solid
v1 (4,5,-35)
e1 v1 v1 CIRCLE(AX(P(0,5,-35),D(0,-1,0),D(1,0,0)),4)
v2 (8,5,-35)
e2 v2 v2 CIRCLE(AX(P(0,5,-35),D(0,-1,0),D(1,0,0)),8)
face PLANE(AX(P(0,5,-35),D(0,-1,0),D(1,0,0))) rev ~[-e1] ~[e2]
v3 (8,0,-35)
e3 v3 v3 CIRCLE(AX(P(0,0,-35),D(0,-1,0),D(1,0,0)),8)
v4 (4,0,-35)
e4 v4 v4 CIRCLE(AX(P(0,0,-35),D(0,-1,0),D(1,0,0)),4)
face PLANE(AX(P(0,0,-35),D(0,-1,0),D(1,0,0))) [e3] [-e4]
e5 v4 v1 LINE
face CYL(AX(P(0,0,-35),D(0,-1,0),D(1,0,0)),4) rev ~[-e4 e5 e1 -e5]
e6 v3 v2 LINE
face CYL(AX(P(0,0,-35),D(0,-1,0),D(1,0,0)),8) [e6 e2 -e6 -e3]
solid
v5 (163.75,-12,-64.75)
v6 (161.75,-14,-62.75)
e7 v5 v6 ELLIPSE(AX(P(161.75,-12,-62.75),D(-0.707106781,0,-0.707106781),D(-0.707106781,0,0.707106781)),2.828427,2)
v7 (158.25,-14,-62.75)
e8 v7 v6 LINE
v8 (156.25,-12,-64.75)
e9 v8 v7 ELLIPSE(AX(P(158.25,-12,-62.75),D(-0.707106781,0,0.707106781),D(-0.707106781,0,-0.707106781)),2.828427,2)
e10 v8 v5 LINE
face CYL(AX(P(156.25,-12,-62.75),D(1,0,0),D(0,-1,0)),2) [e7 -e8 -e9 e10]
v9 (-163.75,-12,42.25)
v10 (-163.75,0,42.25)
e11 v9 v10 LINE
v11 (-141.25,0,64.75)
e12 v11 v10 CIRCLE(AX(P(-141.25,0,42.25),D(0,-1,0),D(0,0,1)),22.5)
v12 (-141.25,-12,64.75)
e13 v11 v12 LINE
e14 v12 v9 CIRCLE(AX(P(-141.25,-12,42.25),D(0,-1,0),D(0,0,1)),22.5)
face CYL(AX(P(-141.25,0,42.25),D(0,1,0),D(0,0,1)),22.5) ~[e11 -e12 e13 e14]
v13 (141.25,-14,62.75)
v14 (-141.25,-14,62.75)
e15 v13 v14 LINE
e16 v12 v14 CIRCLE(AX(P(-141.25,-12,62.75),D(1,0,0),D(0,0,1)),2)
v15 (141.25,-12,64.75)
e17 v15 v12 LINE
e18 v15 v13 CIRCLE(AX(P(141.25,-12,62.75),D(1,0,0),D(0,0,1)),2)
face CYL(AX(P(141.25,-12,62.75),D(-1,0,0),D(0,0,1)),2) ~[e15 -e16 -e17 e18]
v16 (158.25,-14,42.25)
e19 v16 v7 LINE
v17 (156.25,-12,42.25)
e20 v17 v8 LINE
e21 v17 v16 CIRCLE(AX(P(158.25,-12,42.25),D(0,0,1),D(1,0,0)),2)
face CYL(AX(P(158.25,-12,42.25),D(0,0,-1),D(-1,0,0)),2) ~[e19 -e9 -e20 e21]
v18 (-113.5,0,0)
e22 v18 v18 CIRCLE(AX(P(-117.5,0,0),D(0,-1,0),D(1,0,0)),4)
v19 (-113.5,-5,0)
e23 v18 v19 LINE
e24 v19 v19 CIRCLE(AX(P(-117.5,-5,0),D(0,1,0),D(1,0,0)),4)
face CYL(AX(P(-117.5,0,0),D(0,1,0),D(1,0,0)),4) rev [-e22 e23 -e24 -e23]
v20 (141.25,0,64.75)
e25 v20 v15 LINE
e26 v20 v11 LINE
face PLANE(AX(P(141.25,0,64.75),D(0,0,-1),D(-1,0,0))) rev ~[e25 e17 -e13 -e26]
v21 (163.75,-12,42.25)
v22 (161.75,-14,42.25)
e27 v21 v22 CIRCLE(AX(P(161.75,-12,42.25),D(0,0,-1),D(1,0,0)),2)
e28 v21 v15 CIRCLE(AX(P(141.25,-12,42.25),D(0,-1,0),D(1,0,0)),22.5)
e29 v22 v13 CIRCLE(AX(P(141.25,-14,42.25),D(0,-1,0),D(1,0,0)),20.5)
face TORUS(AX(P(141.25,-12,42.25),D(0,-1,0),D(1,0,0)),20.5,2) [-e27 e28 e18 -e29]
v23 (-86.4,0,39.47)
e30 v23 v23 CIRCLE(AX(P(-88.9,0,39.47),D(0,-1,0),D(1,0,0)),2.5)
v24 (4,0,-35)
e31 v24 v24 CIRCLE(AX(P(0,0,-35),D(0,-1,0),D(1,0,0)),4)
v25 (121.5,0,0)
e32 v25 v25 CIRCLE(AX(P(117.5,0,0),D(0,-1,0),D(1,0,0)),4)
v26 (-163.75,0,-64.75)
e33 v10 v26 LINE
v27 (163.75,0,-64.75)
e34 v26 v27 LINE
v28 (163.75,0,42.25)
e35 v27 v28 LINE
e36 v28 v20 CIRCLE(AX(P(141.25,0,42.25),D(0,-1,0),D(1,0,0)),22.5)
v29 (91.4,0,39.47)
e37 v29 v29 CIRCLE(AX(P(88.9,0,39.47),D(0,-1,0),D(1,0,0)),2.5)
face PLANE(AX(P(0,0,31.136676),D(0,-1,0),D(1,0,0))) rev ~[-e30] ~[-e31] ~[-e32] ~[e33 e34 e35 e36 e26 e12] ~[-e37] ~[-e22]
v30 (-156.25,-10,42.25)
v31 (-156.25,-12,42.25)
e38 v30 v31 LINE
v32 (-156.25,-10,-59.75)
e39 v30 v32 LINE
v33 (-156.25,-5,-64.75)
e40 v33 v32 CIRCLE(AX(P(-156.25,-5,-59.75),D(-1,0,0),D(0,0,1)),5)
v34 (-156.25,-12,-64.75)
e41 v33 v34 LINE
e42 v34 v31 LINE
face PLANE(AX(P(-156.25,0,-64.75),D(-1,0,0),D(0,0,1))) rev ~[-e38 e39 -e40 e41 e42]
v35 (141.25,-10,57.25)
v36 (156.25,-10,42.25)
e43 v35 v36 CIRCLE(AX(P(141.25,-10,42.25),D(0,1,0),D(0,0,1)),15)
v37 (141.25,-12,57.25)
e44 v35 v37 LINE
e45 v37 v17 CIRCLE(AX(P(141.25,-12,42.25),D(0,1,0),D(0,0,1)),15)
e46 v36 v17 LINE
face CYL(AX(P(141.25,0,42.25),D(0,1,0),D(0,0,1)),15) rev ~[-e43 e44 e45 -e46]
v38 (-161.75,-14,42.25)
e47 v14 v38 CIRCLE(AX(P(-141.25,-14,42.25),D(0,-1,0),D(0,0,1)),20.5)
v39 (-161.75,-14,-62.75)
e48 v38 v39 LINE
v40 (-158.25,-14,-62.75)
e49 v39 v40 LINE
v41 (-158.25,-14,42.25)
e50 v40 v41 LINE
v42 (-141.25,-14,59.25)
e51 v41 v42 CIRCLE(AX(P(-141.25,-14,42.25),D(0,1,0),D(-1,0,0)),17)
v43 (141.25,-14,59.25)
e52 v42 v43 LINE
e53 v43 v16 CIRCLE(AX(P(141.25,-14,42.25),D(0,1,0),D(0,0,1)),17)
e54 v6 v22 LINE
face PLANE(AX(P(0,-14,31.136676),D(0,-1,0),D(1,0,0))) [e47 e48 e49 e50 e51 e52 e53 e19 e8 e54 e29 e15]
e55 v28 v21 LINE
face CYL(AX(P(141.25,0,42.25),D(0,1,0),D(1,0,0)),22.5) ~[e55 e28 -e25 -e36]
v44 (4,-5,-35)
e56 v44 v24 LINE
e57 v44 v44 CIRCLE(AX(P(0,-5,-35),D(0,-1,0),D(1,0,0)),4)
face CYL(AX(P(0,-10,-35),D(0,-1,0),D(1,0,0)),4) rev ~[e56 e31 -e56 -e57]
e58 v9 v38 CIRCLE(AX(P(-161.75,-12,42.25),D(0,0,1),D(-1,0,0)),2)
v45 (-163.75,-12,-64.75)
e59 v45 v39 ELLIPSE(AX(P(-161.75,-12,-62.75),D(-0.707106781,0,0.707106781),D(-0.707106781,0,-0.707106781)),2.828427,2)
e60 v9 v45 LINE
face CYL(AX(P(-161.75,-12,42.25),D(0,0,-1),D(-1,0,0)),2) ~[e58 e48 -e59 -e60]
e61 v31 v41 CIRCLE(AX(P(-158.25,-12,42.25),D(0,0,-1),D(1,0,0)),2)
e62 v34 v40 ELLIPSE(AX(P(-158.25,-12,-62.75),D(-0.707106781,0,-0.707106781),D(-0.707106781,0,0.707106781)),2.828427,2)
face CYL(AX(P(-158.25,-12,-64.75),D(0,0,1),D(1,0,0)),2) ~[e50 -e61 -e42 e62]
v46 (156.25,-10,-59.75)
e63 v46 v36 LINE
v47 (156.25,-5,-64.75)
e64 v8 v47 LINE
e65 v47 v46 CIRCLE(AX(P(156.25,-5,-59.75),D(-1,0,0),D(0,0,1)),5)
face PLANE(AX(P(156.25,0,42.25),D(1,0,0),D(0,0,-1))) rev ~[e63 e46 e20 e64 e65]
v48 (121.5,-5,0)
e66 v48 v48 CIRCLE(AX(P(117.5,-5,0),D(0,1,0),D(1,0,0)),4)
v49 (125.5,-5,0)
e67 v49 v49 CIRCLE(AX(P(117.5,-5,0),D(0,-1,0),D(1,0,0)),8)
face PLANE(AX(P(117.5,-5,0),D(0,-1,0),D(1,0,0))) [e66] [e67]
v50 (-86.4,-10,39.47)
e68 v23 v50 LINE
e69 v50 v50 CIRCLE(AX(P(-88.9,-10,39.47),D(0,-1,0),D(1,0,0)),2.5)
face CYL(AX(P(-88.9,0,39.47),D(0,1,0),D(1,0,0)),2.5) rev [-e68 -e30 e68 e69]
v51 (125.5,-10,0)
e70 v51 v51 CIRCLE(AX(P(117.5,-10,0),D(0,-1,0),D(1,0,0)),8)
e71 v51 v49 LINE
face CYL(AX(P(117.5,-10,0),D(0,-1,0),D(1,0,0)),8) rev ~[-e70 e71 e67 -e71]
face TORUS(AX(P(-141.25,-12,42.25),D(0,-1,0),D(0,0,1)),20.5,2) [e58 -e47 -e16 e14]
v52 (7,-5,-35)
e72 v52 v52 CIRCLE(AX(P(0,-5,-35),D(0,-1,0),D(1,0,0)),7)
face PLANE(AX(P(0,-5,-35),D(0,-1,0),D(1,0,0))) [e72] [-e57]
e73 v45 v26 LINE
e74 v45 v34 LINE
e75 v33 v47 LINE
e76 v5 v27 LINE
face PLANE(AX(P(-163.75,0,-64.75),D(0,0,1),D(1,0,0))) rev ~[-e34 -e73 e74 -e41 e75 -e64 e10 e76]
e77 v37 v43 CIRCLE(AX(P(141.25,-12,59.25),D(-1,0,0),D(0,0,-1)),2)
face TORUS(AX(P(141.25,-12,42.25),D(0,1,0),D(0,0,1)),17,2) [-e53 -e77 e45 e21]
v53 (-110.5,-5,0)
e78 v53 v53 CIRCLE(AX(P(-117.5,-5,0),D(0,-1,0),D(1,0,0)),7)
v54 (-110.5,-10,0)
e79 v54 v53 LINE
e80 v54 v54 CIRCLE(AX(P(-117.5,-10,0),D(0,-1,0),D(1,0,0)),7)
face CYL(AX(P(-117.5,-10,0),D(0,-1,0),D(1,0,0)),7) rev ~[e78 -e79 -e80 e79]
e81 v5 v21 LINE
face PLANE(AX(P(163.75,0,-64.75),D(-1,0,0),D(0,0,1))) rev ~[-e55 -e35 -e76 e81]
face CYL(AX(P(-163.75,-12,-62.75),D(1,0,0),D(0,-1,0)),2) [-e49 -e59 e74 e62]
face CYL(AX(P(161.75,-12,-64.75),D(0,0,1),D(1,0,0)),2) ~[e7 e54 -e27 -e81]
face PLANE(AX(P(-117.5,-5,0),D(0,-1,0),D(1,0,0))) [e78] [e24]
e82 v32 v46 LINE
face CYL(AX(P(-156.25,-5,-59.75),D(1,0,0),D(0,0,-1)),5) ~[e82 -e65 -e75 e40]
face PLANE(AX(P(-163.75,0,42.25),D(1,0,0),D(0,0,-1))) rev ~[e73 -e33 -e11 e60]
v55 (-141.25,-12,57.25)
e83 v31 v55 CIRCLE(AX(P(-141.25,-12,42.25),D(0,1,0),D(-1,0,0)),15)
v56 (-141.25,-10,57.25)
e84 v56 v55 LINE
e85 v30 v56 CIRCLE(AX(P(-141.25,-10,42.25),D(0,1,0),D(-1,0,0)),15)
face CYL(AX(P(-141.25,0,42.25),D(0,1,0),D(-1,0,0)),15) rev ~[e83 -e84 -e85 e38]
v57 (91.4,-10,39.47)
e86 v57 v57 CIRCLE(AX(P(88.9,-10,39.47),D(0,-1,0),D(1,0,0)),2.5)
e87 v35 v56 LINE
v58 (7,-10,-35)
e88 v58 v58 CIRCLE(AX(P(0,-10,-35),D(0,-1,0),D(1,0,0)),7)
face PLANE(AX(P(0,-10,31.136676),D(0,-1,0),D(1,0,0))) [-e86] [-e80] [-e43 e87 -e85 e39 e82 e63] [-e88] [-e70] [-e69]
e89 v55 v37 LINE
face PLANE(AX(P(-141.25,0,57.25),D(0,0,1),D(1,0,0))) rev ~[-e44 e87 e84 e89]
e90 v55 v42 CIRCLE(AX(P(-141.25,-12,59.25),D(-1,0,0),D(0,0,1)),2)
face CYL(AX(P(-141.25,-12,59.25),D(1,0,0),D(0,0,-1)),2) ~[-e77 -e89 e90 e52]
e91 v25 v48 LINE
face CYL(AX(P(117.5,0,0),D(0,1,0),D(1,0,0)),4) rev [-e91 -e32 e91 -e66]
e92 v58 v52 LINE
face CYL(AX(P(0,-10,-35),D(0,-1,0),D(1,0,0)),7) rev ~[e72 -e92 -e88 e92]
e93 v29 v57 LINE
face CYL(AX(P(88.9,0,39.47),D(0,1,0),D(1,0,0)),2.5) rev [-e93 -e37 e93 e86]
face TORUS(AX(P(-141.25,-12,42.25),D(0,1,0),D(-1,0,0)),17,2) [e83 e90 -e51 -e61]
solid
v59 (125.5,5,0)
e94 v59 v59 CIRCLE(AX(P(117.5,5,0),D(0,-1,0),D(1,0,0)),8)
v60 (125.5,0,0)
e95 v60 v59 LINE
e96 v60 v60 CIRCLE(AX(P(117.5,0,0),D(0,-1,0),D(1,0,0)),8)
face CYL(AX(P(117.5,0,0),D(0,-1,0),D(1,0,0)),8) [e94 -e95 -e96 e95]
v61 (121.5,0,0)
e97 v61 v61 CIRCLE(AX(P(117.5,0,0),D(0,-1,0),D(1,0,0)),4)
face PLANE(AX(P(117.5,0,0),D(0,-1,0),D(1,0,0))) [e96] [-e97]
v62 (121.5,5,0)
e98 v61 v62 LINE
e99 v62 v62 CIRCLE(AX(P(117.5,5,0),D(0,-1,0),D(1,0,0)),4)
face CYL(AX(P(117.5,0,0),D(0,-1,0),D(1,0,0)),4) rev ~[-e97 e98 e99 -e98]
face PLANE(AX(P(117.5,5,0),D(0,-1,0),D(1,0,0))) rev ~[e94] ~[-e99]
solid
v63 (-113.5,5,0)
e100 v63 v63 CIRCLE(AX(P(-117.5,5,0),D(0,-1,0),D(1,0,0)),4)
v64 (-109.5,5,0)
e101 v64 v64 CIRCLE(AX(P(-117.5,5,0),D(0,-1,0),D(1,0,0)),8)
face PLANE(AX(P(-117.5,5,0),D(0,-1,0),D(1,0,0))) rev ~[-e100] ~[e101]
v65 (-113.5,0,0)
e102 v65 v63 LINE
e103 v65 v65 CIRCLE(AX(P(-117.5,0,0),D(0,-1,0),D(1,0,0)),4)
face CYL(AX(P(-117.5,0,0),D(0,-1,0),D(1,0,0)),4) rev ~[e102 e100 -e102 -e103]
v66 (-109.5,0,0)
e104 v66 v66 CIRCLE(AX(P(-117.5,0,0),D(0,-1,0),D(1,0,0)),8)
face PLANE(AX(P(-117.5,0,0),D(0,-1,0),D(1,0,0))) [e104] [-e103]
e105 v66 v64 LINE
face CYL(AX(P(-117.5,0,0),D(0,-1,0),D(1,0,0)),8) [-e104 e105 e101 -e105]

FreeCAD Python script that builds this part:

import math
import FreeCAD as App
import Part
import Sketcher
from FreeCAD import Vector
Q = App.Units.Quantity


def edges_at(feature, points):
    """Names of the edges that pass closest to the given points."""
    edges = feature.Shape.Edges
    near = lambda p: min(range(len(edges)), key=lambda i: edges[i].distToShape(Part.Vertex(*p))[0])
    return sorted({f"Edge{near(p) + 1}" for p in points})

doc = App.newDocument("Part")
params = doc.addObject("Spreadsheet::Sheet", "Params")
for row, (alias, value) in enumerate([
    ("sketch1_diameter", "8 mm"),
    ("sketch1_diameter2", "5 mm"),
    ("sketch1_radius", "22.5 mm"),
    ("sketch1_height", "107 mm"),
    ("sketch1_width", "282.5 mm"),
    ("pad1_length", "10 mm"),
    ("sketch2_radius", "15 mm"),
    ("sketch2_radius2", "22.5 mm"),
    ("sketch2_height", "107 mm"),
    ("sketch2_width", "282.5 mm"),
    ("pad2_length", "14 mm"),
    ("fillet_radius", "2 mm"),
    ("fillet2_radius", "5 mm"),
    ("sketch3_diameter", "14 mm"),
    ("sketch3_diameter2", "16 mm"),
    ("pocket1_length", "5 mm"),
    ("sketch4_diameter", "8 mm"),
    ("pocket2_length", "25 mm"),
    ("sketch5_diameter", "14 mm"),
    ("sketch5_diameter2", "8 mm"),
    ("pocket3_length", "5 mm"),
    ("sketch6_diameter", "16 mm"),
    ("sketch6_diameter2", "8 mm"),
    ("pad3_length", "5 mm"),
    ("sketch7_diameter", "16 mm"),
    ("sketch7_diameter2", "8 mm"),
    ("pad4_length", "5 mm"),
    ("sketch8_diameter", "16 mm"),
    ("sketch8_diameter2", "8 mm"),
    ("pad5_length", "5 mm"),
], start=1):
    params.set(f"A{row}", alias)
    params.set(f"B{row}", "=" + value)
    params.setAlias(f"B{row}", alias)

body = doc.addObject("PartDesign::Body", "Body")

sketch1 = body.newObject("Sketcher::SketchObject", "Sketch")
sketch1.AttachmentSupport = (doc.getObject("XZ_Plane"), [""])
sketch1.MapMode = "FlatFace"
sketch1.addGeometry([
    Part.LineSegment(Vector(163.8, -64.8, 0), Vector(163.8, 42.2, 0)),
    Part.ArcOfCircle(Part.Circle(Vector(141.2, 42.2, 0), Vector(0, 0, 1), 22.5), math.radians(0), math.radians(90)),
    Part.LineSegment(Vector(141.2, 64.8, 0), Vector(-141.2, 64.8, 0)),
    Part.ArcOfCircle(Part.Circle(Vector(-141.2, 42.2, 0), Vector(0, 0, 1), 22.5), math.radians(90), math.radians(180)),
    Part.LineSegment(Vector(-163.8, 42.2, 0), Vector(-163.8, -64.8, 0)),
    Part.LineSegment(Vector(-163.8, -64.8, 0), Vector(163.8, -64.8, 0)),
    Part.Circle(Vector(-117.5, 0, 0), Vector(0, 0, 1), 4),
    Part.Circle(Vector(117.5, 0, 0), Vector(0, 0, 1), 4),
    Part.Circle(Vector(-88.9, 39.5, 0), Vector(0, 0, 1), 2.5),
    Part.Circle(Vector(88.9, 39.5, 0), Vector(0, 0, 1), 2.5),
], False)
sketch1.addConstraint([
    Sketcher.Constraint("Tangent", 0, 2, 1, 1),
    Sketcher.Constraint("Tangent", 1, 2, 2, 1),
    Sketcher.Constraint("Tangent", 2, 2, 3, 1),
    Sketcher.Constraint("Tangent", 3, 2, 4, 1),
    Sketcher.Constraint("Coincident", 4, 2, 5, 1),
    Sketcher.Constraint("Coincident", 5, 2, 0, 1),
    Sketcher.Constraint("Vertical", 0),
    Sketcher.Constraint("Horizontal", 2),
    Sketcher.Constraint("Vertical", 4),
    Sketcher.Constraint("Horizontal", 5),
    Sketcher.Constraint("Equal", 1, 3),
    Sketcher.Constraint("Equal", 6, 7),
    Sketcher.Constraint("Equal", 8, 9),
    Sketcher.Constraint("Symmetric", 6, 3, 7, 3, -1, 1),
    Sketcher.Constraint("Symmetric", 8, 3, 9, 3, -2),
    Sketcher.Constraint("PointOnObject", 6, 3, -1),
    Sketcher.Constraint("Diameter", 6, Q("8 mm")),
    Sketcher.Constraint("Diameter", 8, Q("5 mm")),
    Sketcher.Constraint("Radius", 1, Q("22.5 mm")),
    Sketcher.Constraint("DistanceY", 0, 1, 0, 2, Q("107 mm")),
    Sketcher.Constraint("DistanceX", 2, 2, 2, 1, Q("282.5 mm")),
    Sketcher.Constraint("DistanceX", 6, 3, 7, 3, Q("235 mm")),
    Sketcher.Constraint("DistanceX", 8, 3, -1, 1, Q("88.9 mm")),
    Sketcher.Constraint("DistanceX", -1, 1, 1, 3, Q("141.25 mm")),
    Sketcher.Constraint("DistanceY", -1, 1, 1, 3, Q("42.25 mm")),
    Sketcher.Constraint("DistanceY", -1, 1, 8, 3, Q("39.47 mm")),
])
sketch1.setExpression("Constraints[16]", "Params.sketch1_diameter")
sketch1.setExpression("Constraints[17]", "Params.sketch1_diameter2")
sketch1.setExpression("Constraints[18]", "Params.sketch1_radius")
sketch1.setExpression("Constraints[19]", "Params.sketch1_height")
sketch1.setExpression("Constraints[20]", "Params.sketch1_width")
pad1 = body.newObject("PartDesign::Pad", "Pad")
pad1.Profile = sketch1
pad1.setExpression("Length", "Params.pad1_length")

sketch2 = body.newObject("Sketcher::SketchObject", "Sketch001")
sketch2.AttachmentSupport = (doc.getObject("XZ_Plane"), [""])
sketch2.MapMode = "FlatFace"
sketch2.addGeometry([
    Part.LineSegment(Vector(-141, 57, 0), Vector(141, 57, 0)),
    Part.ArcOfCircle(Part.Circle(Vector(141, 42, 0), Vector(0, 0, 1), 15), math.radians(0), math.radians(90)),
    Part.LineSegment(Vector(156, 42, 0), Vector(156, -65, 0)),
    Part.LineSegment(Vector(156, -65, 0), Vector(164, -65, 0)),
    Part.LineSegment(Vector(164, -65, 0), Vector(164, 42, 0)),
    Part.ArcOfCircle(Part.Circle(Vector(141, 42, 0), Vector(0, 0, 1), 22), math.radians(0), math.radians(90)),
    Part.LineSegment(Vector(141, 65, 0), Vector(-141, 65, 0)),
    Part.ArcOfCircle(Part.Circle(Vector(-141, 42, 0), Vector(0, 0, 1), 22), math.radians(90), math.radians(180)),
    Part.LineSegment(Vector(-164, 42, 0), Vector(-164, -65, 0)),
    Part.LineSegment(Vector(-164, -65, 0), Vector(-156, -65, 0)),
    Part.LineSegment(Vector(-156, -65, 0), Vector(-156, 42, 0)),
    Part.ArcOfCircle(Part.Circle(Vector(-141, 42, 0), Vector(0, 0, 1), 15), math.radians(90), math.radians(180)),
], False)
sketch2.addConstraint([
    Sketcher.Constraint("Tangent", 0, 2, 1, 2),
    Sketcher.Constraint("Tangent", 1, 1, 2, 1),
    Sketcher.Constraint("Coincident", 2, 2, 3, 1),
    Sketcher.Constraint("Coincident", 3, 2, 4, 1),
    Sketcher.Constraint("Tangent", 4, 2, 5, 1),
    Sketcher.Constraint("Tangent", 5, 2, 6, 1),
    Sketcher.Constraint("Tangent", 6, 2, 7, 1),
    Sketcher.Constraint("Tangent", 7, 2, 8, 1),
    Sketcher.Constraint("Coincident", 8, 2, 9, 1),
    Sketcher.Constraint("Coincident", 9, 2, 10, 1),
    Sketcher.Constraint("Tangent", 10, 2, 11, 2),
    Sketcher.Constraint("Tangent", 11, 1, 0, 1),
    Sketcher.Constraint("Horizontal", 0),
    Sketcher.Constraint("Vertical", 2),
    Sketcher.Constraint("Horizontal", 3),
    Sketcher.Constraint("Vertical", 4),
    Sketcher.Constraint("Horizontal", 6),
    Sketcher.Constraint("Vertical", 8),
    Sketcher.Constraint("Horizontal", 9),
    Sketcher.Constraint("Vertical", 10),
    Sketcher.Constraint("Coincident", 5, 3, 1, 3),
    Sketcher.Constraint("Coincident", 11, 3, 7, 3),
    Sketcher.Constraint("Equal", 5, 7),
    Sketcher.Constraint("Symmetric", 3, 2, 8, 2, -2),
    Sketcher.Constraint("Radius", 1, Q("15 mm")),
    Sketcher.Constraint("Radius", 5, Q("22.5 mm")),
    Sketcher.Constraint("DistanceY", 2, 2, 2, 1, Q("107 mm")),
    Sketcher.Constraint("DistanceX", 0, 1, 0, 2, Q("282.5 mm")),
    Sketcher.Constraint("DistanceY", -1, 1, 1, 3, Q("42.25 mm")),
])
sketch2.setExpression("Constraints[24]", "Params.sketch2_radius")
sketch2.setExpression("Constraints[25]", "Params.sketch2_radius2")
sketch2.setExpression("Constraints[26]", "Params.sketch2_height")
sketch2.setExpression("Constraints[27]", "Params.sketch2_width")
pad2 = body.newObject("PartDesign::Pad", "Pad001")
pad2.Profile = sketch2
pad2.setExpression("Length", "Params.pad2_length")
doc.recompute()

fillet = body.newObject("PartDesign::Fillet", "Fillet")
fillet.Base = (pad2, edges_at(pad2, [
    (-163.75, -14, -11.25),
    (0, -14, 57.25),
    (-160, -14, -64.75),
    (160, -14, -64.75),
]))
fillet.setExpression("Radius", "Params.fillet_radius")
doc.recompute()

fillet2 = body.newObject("PartDesign::Fillet", "Fillet001")
fillet2.Base = (fillet, edges_at(fillet, [(0, -10, -64.75)]))
fillet2.setExpression("Radius", "Params.fillet2_radius")

sketch3 = body.newObject("Sketcher::SketchObject", "Sketch002")
sketch3.AttachmentSupport = (doc.getObject("XZ_Plane"), [""])
sketch3.MapMode = "FlatFace"
sketch3.AttachmentOffset = App.Placement(Vector(0, 0, 10), App.Rotation())
sketch3.addGeometry([
    Part.Circle(Vector(-118, 0, 0), Vector(0, 0, 1), 7),
    Part.Circle(Vector(118, 0, 0), Vector(0, 0, 1), 8),
], False)
sketch3.addConstraint([
    Sketcher.Constraint("Symmetric", 0, 3, 1, 3, -1, 1),
    Sketcher.Constraint("PointOnObject", 0, 3, -1),
    Sketcher.Constraint("Diameter", 0, Q("14 mm")),
    Sketcher.Constraint("Diameter", 1, Q("16 mm")),
    Sketcher.Constraint("DistanceX", 0, 3, 1, 3, Q("235 mm")),
])
sketch3.setExpression("Constraints[2]", "Params.sketch3_diameter")
sketch3.setExpression("Constraints[3]", "Params.sketch3_diameter2")
pocket1 = body.newObject("PartDesign::Pocket", "Pocket")
pocket1.Profile = sketch3
pocket1.setExpression("Length", "Params.pocket1_length")

sketch4 = body.newObject("Sketcher::SketchObject", "Sketch003")
sketch4.AttachmentSupport = (doc.getObject("XZ_Plane"), [""])
sketch4.MapMode = "FlatFace"
sketch4.AttachmentOffset = App.Placement(Vector(0, 0, 10), App.Rotation())
sketch4.addGeometry(Part.Circle(Vector(0, -35, 0), Vector(0, 0, 1), 4), False)
sketch4.addConstraint([
    Sketcher.Constraint("PointOnObject", 0, 3, -2),
    Sketcher.Constraint("Diameter", 0, Q("8 mm")),
    Sketcher.Constraint("DistanceY", 0, 3, -1, 1, Q("35 mm")),
])
sketch4.setExpression("Constraints[1]", "Params.sketch4_diameter")
pocket2 = body.newObject("PartDesign::Pocket", "Pocket001")
pocket2.Profile = sketch4
pocket2.setExpression("Length", "Params.pocket2_length")

sketch5 = body.newObject("Sketcher::SketchObject", "Sketch004")
sketch5.AttachmentSupport = (doc.getObject("XZ_Plane"), [""])
sketch5.MapMode = "FlatFace"
sketch5.AttachmentOffset = App.Placement(Vector(0, 0, 10), App.Rotation())
sketch5.addGeometry([
    Part.Circle(Vector(0, -35, 0), Vector(0, 0, 1), 7),
    Part.Circle(Vector(0, -35, 0), Vector(0, 0, 1), 4),
], False)
sketch5.addConstraint([
    Sketcher.Constraint("Coincident", 1, 3, 0, 3),
    Sketcher.Constraint("PointOnObject", 0, 3, -2),
    Sketcher.Constraint("Diameter", 0, Q("14 mm")),
    Sketcher.Constraint("Diameter", 1, Q("8 mm")),
    Sketcher.Constraint("DistanceY", 0, 3, -1, 1, Q("35 mm")),
])
sketch5.setExpression("Constraints[2]", "Params.sketch5_diameter")
sketch5.setExpression("Constraints[3]", "Params.sketch5_diameter2")
pocket3 = body.newObject("PartDesign::Pocket", "Pocket002")
pocket3.Profile = sketch5
pocket3.setExpression("Length", "Params.pocket3_length")
body2 = doc.addObject("PartDesign::Body", "Body001")

sketch6 = body2.newObject("Sketcher::SketchObject", "Sketch005")
sketch6.AttachmentSupport = (doc.getObject("XZ_Plane001"), [""])
sketch6.MapMode = "FlatFace"
sketch6.addGeometry([
    Part.Circle(Vector(117.5, 0, 0), Vector(0, 0, 1), 8),
    Part.Circle(Vector(117.5, 0, 0), Vector(0, 0, 1), 4),
], False)
sketch6.addConstraint([
    Sketcher.Constraint("Coincident", 1, 3, 0, 3),
    Sketcher.Constraint("PointOnObject", 0, 3, -1),
    Sketcher.Constraint("Diameter", 0, Q("16 mm")),
    Sketcher.Constraint("Diameter", 1, Q("8 mm")),
    Sketcher.Constraint("DistanceX", -1, 1, 0, 3, Q("117.5 mm")),
])
sketch6.setExpression("Constraints[2]", "Params.sketch6_diameter")
sketch6.setExpression("Constraints[3]", "Params.sketch6_diameter2")
pad3 = body2.newObject("PartDesign::Pad", "Pad002")
pad3.Profile = sketch6
pad3.setExpression("Length", "Params.pad3_length")
pad3.Reversed = True
body3 = doc.addObject("PartDesign::Body", "Body002")

sketch7 = body3.newObject("Sketcher::SketchObject", "Sketch006")
sketch7.AttachmentSupport = (doc.getObject("XZ_Plane002"), [""])
sketch7.MapMode = "FlatFace"
sketch7.addGeometry([
    Part.Circle(Vector(-117.5, 0, 0), Vector(0, 0, 1), 8),
    Part.Circle(Vector(-117.5, 0, 0), Vector(0, 0, 1), 4),
], False)
sketch7.addConstraint([
    Sketcher.Constraint("Coincident", 1, 3, 0, 3),
    Sketcher.Constraint("PointOnObject", 0, 3, -1),
    Sketcher.Constraint("Diameter", 0, Q("16 mm")),
    Sketcher.Constraint("Diameter", 1, Q("8 mm")),
    Sketcher.Constraint("DistanceX", 0, 3, -1, 1, Q("117.5 mm")),
])
sketch7.setExpression("Constraints[2]", "Params.sketch7_diameter")
sketch7.setExpression("Constraints[3]", "Params.sketch7_diameter2")
pad4 = body3.newObject("PartDesign::Pad", "Pad003")
pad4.Profile = sketch7
pad4.setExpression("Length", "Params.pad4_length")
pad4.Reversed = True
body4 = doc.addObject("PartDesign::Body", "Body003")

sketch8 = body4.newObject("Sketcher::SketchObject", "Sketch007")
sketch8.AttachmentSupport = (doc.getObject("XZ_Plane003"), [""])
sketch8.MapMode = "FlatFace"
sketch8.addGeometry([
    Part.Circle(Vector(0, -35, 0), Vector(0, 0, 1), 8),
    Part.Circle(Vector(0, -35, 0), Vector(0, 0, 1), 4),
], False)
sketch8.addConstraint([
    Sketcher.Constraint("Coincident", 1, 3, 0, 3),
    Sketcher.Constraint("PointOnObject", 0, 3, -2),
    Sketcher.Constraint("Diameter", 0, Q("16 mm")),
    Sketcher.Constraint("Diameter", 1, Q("8 mm")),
    Sketcher.Constraint("DistanceY", 0, 3, -1, 1, Q("35 mm")),
])
sketch8.setExpression("Constraints[2]", "Params.sketch8_diameter")
sketch8.setExpression("Constraints[3]", "Params.sketch8_diameter2")
pad5 = body4.newObject("PartDesign::Pad", "Pad004")
pad5.Profile = sketch8
pad5.setExpression("Length", "Params.pad5_length")
pad5.Reversed = True

doc.recompute()
